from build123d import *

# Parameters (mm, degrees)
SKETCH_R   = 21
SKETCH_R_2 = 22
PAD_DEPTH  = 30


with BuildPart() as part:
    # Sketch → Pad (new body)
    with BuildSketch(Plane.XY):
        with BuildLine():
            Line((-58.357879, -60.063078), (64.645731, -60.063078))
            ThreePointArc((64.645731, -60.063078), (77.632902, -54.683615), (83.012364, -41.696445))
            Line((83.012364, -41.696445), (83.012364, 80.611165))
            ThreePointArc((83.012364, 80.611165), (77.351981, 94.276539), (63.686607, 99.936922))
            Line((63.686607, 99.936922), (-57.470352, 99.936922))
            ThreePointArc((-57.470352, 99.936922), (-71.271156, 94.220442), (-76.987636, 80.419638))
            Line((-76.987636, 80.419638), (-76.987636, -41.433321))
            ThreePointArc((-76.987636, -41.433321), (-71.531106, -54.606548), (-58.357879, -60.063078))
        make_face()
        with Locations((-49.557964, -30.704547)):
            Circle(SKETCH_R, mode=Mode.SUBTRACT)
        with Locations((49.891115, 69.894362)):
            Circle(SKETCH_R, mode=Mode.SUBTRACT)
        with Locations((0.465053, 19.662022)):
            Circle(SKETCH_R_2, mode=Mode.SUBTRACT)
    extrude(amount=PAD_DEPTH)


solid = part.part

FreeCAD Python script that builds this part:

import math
import FreeCAD as App
import Part
import Sketcher

V = App.Vector
Q = App.Units.Quantity

doc = App.newDocument("Part")
body = doc.addObject("PartDesign::Body", "Body")

sketch1 = body.newObject("Sketcher::SketchObject", "Sketch")
sketch1.AttachmentSupport = (doc.getObject("XY_Plane"), [""])
sketch1.MapMode = "FlatFace"
sketch1.addGeometry(Part.LineSegment(V(-58, -60, 0), V(65, -60, 0)), False)
sketch1.addGeometry(Part.ArcOfCircle(Part.Circle(V(65, -42, 0), V(0, 0, 1), 18), math.radians(-90), math.radians(0)), False)
sketch1.addGeometry(Part.LineSegment(V(83, -42, 0), V(83, 81, 0)), False)
sketch1.addGeometry(Part.ArcOfCircle(Part.Circle(V(64, 81, 0), V(0, 0, 1), 19), math.radians(0), math.radians(90)), False)
sketch1.addGeometry(Part.LineSegment(V(64, 100, 0), V(-57, 100, 0)), False)
sketch1.addGeometry(Part.ArcOfCircle(Part.Circle(V(-57, 80, 0), V(0, 0, 1), 20), math.radians(90), math.radians(180)), False)
sketch1.addGeometry(Part.LineSegment(V(-77, 80, 0), V(-77, -41, 0)), False)
sketch1.addGeometry(Part.ArcOfCircle(Part.Circle(V(-58, -41, 0), V(0, 0, 1), 19), math.radians(-180), math.radians(-90)), False)
sketch1.addGeometry(Part.Circle(V(-50, -31, 0), V(0, 0, 1), 21), False)
sketch1.addGeometry(Part.Circle(V(0, 20, 0), V(0, 0, 1), 22), False)
sketch1.addGeometry(Part.Circle(V(50, 70, 0), V(0, 0, 1), 21), False)
sketch1.addConstraint(Sketcher.Constraint("Tangent", 0, 2, 1, 1))
sketch1.addConstraint(Sketcher.Constraint("Tangent", 1, 2, 2, 1))
sketch1.addConstraint(Sketcher.Constraint("Tangent", 2, 2, 3, 1))
sketch1.addConstraint(Sketcher.Constraint("Tangent", 3, 2, 4, 1))
sketch1.addConstraint(Sketcher.Constraint("Tangent", 4, 2, 5, 1))
sketch1.addConstraint(Sketcher.Constraint("Tangent", 5, 2, 6, 1))
sketch1.addConstraint(Sketcher.Constraint("Tangent", 6, 2, 7, 1))
sketch1.addConstraint(Sketcher.Constraint("Tangent", 7, 2, 0, 1))
sketch1.addConstraint(Sketcher.Constraint("Horizontal", 0))
sketch1.addConstraint(Sketcher.Constraint("Vertical", 2))
sketch1.addConstraint(Sketcher.Constraint("Horizontal", 4))
sketch1.addConstraint(Sketcher.Constraint("Vertical", 6))
sketch1.addConstraint(Sketcher.Constraint("Equal", 8, 10))
sketch1.addConstraint(Sketcher.Constraint("Diameter", 8, Q("42 mm")))
sketch1.addConstraint(Sketcher.Constraint("Diameter", 9, Q("44 mm")))
sketch1.addConstraint(Sketcher.Constraint("Radius", 7, Q("18.629759 mm")))
sketch1.addConstraint(Sketcher.Constraint("Radius", 1, Q("18.366634 mm")))
sketch1.addConstraint(Sketcher.Constraint("Radius", 3, Q("19.325756 mm")))
sketch1.addConstraint(Sketcher.Constraint("Radius", 5, Q("19.517284 mm")))
sketch1.addConstraint(Sketcher.Constraint("DistanceX", 0, 1, 0, 2, Q("123.00361 mm")))
sketch1.addConstraint(Sketcher.Constraint("DistanceY", 2, 1, 2, 2, Q("122.30761 mm")))
sketch1.addConstraint(Sketcher.Constraint("DistanceY", 0, 2, 9, 3, Q("79.7251 mm")))
sketch1.addConstraint(Sketcher.Constraint("DistanceX", -1, 1, 1, 3, Q("64.64573 mm")))
sketch1.addConstraint(Sketcher.Constraint("DistanceY", -1, 1, 5, 3, Q("80.419638 mm")))
sketch1.addConstraint(Sketcher.Constraint("DistanceY", -1, 1, 10, 3, Q("69.894362 mm")))
sketch1.addConstraint(Sketcher.Constraint("DistanceX", 5, 3, 8, 3, Q("7.912388 mm")))
sketch1.addConstraint(Sketcher.Constraint("DistanceY", 8, 3, 9, 3, Q("50.366569 mm")))
sketch1.addConstraint(Sketcher.Constraint("DistanceX", 7, 3, 9, 3, Q("58.82293 mm")))
sketch1.addConstraint(Sketcher.Constraint("DistanceX", 8, 3, 10, 3, Q("99.449079 mm")))
pad1 = body.newObject("PartDesign::Pad", "Pad")
pad1.Profile = sketch1
pad1.Length = 30

doc.recompute()
